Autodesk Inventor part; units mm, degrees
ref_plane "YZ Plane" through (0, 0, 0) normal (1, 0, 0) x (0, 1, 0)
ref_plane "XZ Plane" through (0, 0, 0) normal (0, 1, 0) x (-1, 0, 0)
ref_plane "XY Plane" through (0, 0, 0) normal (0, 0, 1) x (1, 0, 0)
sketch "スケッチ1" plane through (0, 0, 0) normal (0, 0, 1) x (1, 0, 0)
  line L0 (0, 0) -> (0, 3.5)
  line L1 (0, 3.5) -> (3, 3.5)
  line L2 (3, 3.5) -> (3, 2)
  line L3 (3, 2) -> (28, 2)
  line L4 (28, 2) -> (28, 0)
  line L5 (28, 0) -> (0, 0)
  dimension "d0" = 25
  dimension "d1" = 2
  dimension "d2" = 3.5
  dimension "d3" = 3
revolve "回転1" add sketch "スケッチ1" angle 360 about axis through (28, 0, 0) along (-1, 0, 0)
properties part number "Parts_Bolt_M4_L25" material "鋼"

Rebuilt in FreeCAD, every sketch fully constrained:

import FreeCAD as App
import Part
import Sketcher

V = App.Vector


def add_polygon(sketch, points):
    """Adds a closed chain of lines whose ends are joined by coincident constraints."""
    first, n = sketch.GeometryCount, len(points)
    for a, b in zip(points, points[1:] + points[:1]):
        sketch.addGeometry(Part.LineSegment(App.Vector(*a, 0), App.Vector(*b, 0)), False)
    for i in range(n):
        sketch.addConstraint(Sketcher.Constraint("Coincident", first + i, 2, first + (i + 1) % n, 1))

doc = App.newDocument("Part")
body = doc.addObject("PartDesign::Body", "Body")

sketch1 = doc.addObject("Sketcher::SketchObject", "Sketch")
body.addObject(sketch1)
sketch1.AttachmentSupport = (doc.XY_Plane, [""])
sketch1.MapMode = "FlatFace"
add_polygon(sketch1, [(0, 3.5), (0, 0), (28, 0), (28, 2), (3, 2), (3, 3.5)])
sketch1.addConstraint(Sketcher.Constraint("Vertical", 0))
sketch1.addConstraint(Sketcher.Constraint("Horizontal", 1))
sketch1.addConstraint(Sketcher.Constraint("Vertical", 2))
sketch1.addConstraint(Sketcher.Constraint("Horizontal", 3))
sketch1.addConstraint(Sketcher.Constraint("Vertical", 4))
sketch1.addConstraint(Sketcher.Constraint("Horizontal", 5))
sketch1.addConstraint(Sketcher.Constraint("Coincident", 0, 2, -1, 1))
sketch1.addConstraint(Sketcher.Constraint("DistanceX", 3, 2, 3, 1, 25.0))
sketch1.addConstraint(Sketcher.Constraint("DistanceX", 5, 2, 5, 1, 3.0))
sketch1.addConstraint(Sketcher.Constraint("DistanceY", 2, 1, 2, 2, 2.0))
sketch1.addConstraint(Sketcher.Constraint("DistanceY", 0, 2, 0, 1, 3.5))
revolution = doc.addObject("PartDesign::Revolution", "Revolution")
body.addObject(revolution)
revolution.Profile = sketch1
revolution.ReferenceAxis = (sketch1, ["H_Axis"])
revolution.Angle = 360

doc.recompute()
